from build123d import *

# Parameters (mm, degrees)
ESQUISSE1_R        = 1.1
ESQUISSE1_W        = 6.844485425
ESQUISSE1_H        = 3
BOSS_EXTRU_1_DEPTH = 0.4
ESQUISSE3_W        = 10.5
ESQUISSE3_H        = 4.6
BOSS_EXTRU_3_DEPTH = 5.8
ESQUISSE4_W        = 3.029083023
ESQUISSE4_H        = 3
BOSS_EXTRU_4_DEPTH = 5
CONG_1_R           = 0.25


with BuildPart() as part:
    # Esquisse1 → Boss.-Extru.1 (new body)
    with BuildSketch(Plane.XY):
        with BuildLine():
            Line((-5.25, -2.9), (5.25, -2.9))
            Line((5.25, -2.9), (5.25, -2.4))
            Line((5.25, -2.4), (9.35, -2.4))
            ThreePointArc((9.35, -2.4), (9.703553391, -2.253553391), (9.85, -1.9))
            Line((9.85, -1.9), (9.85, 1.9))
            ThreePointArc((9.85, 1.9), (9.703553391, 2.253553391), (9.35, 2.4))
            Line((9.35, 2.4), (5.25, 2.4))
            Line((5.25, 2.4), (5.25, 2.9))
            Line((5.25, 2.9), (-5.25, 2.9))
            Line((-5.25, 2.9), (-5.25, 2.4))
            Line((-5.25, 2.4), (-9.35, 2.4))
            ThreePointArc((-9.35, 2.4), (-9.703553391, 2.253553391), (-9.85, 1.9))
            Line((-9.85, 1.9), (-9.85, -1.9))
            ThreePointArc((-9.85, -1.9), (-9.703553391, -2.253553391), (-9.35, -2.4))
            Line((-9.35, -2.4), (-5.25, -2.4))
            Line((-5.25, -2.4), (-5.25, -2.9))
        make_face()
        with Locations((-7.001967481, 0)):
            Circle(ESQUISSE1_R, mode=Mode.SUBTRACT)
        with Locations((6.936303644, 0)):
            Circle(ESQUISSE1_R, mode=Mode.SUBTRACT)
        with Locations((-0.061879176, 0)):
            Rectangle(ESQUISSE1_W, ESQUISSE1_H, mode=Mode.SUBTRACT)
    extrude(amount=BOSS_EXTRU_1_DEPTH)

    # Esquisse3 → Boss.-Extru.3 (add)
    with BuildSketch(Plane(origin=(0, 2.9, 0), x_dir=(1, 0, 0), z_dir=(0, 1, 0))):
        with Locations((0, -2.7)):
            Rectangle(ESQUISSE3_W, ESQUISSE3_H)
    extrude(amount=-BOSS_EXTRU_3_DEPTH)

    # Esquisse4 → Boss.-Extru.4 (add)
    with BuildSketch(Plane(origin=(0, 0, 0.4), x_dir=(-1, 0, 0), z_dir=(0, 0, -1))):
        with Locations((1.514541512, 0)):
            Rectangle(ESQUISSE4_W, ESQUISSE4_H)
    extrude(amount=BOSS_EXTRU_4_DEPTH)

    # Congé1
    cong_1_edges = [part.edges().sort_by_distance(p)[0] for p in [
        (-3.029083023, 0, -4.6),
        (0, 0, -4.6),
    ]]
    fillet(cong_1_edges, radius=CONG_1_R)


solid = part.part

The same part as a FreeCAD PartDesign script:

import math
import FreeCAD as App
import Part
import Sketcher
from FreeCAD import Vector


def edges_at(feature, points):
    """Names of the edges that pass closest to the given points."""
    edges = feature.Shape.Edges
    near = lambda p: min(range(len(edges)), key=lambda i: edges[i].distToShape(Part.Vertex(*p))[0])
    return sorted({f"Edge{near(p) + 1}" for p in points})


def add_polygon(sketch, points):
    """Adds a closed chain of lines whose ends are joined by coincident constraints."""
    first, n = sketch.GeometryCount, len(points)
    for a, b in zip(points, points[1:] + points[:1]):
        sketch.addGeometry(Part.LineSegment(App.Vector(*a, 0), App.Vector(*b, 0)), False)
    for i in range(n):
        sketch.addConstraint(Sketcher.Constraint("Coincident", first + i, 2, first + (i + 1) % n, 1))

doc = App.newDocument("Part")
params = doc.addObject("Spreadsheet::Sheet", "Params")
for row, (alias, value) in enumerate([
    ("sketch1_diameter", "2.2 mm"),
    ("sketch1_radius", "0.5 mm"),
    ("sketch1_height", "3 mm"),
    ("sketch1_width", "10.5 mm"),
    ("sketch1_width2", "4.1 mm"),
    ("pad1_length", "0.4 mm"),
    ("sketch2_width", "10.5 mm"),
    ("sketch2_height", "4.6 mm"),
    ("pad2_length", "5.8 mm"),
    ("sketch3_height", "3 mm"),
    ("pad3_length", "5 mm"),
    ("fillet_radius", "0.25 mm"),
], start=1):
    params.set(f"A{row}", alias)
    params.set(f"B{row}", "=" + value)
    params.setAlias(f"B{row}", alias)

body = doc.addObject("PartDesign::Body", "Body")

sketch1 = body.newObject("Sketcher::SketchObject", "Sketch")
sketch1.AttachmentSupport = (doc.getObject("XY_Plane"), [""])
sketch1.MapMode = "FlatFace"
sketch1.addGeometry(Part.LineSegment(Vector(-5.25, -2.9, 0), Vector(5.25, -2.9, 0)), False)
sketch1.addGeometry(Part.LineSegment(Vector(5.25, -2.9, 0), Vector(5.25, -2.4, 0)), False)
sketch1.addGeometry(Part.LineSegment(Vector(5.25, -2.4, 0), Vector(9.35, -2.4, 0)), False)
sketch1.addGeometry(Part.ArcOfCircle(Part.Circle(Vector(9.35, -1.9, 0), Vector(0, 0, 1), 0.5), math.radians(-90), math.radians(0)), False)
sketch1.addGeometry(Part.LineSegment(Vector(9.85, -1.9, 0), Vector(9.85, 1.9, 0)), False)
sketch1.addGeometry(Part.ArcOfCircle(Part.Circle(Vector(9.35, 1.9, 0), Vector(0, 0, 1), 0.5), math.radians(0), math.radians(90)), False)
sketch1.addGeometry(Part.LineSegment(Vector(9.35, 2.4, 0), Vector(5.25, 2.4, 0)), False)
sketch1.addGeometry(Part.LineSegment(Vector(5.25, 2.4, 0), Vector(5.25, 2.9, 0)), False)
sketch1.addGeometry(Part.LineSegment(Vector(5.25, 2.9, 0), Vector(-5.25, 2.9, 0)), False)
sketch1.addGeometry(Part.LineSegment(Vector(-5.25, 2.9, 0), Vector(-5.25, 2.4, 0)), False)
sketch1.addGeometry(Part.LineSegment(Vector(-5.25, 2.4, 0), Vector(-9.35, 2.4, 0)), False)
sketch1.addGeometry(Part.ArcOfCircle(Part.Circle(Vector(-9.35, 1.9, 0), Vector(0, 0, 1), 0.5), math.radians(90), math.radians(180)), False)
sketch1.addGeometry(Part.LineSegment(Vector(-9.85, 1.9, 0), Vector(-9.85, -1.9, 0)), False)
sketch1.addGeometry(Part.ArcOfCircle(Part.Circle(Vector(-9.35, -1.9, 0), Vector(0, 0, 1), 0.5), math.radians(180), math.radians(270)), False)
sketch1.addGeometry(Part.LineSegment(Vector(-9.35, -2.4, 0), Vector(-5.25, -2.4, 0)), False)
sketch1.addGeometry(Part.LineSegment(Vector(-5.25, -2.4, 0), Vector(-5.25, -2.9, 0)), False)
sketch1.addGeometry(Part.Circle(Vector(-7, 0, 0), Vector(0, 0, 1), 1.1), False)
add_polygon(sketch1, [(3.36, -1.5), (-3.48, -1.5), (-3.48, 1.5), (3.36, 1.5)])
sketch1.addGeometry(Part.Circle(Vector(6.94, 0, 0), Vector(0, 0, 1), 1.1), False)
sketch1.addConstraint([
    Sketcher.Constraint("Coincident", 0, 2, 1, 1),
    Sketcher.Constraint("Coincident", 1, 2, 2, 1),
    Sketcher.Constraint("Tangent", 2, 2, 3, 1),
    Sketcher.Constraint("Tangent", 3, 2, 4, 1),
    Sketcher.Constraint("Tangent", 4, 2, 5, 1),
    Sketcher.Constraint("Tangent", 5, 2, 6, 1),
    Sketcher.Constraint("Coincident", 6, 2, 7, 1),
    Sketcher.Constraint("Coincident", 7, 2, 8, 1),
    Sketcher.Constraint("Coincident", 8, 2, 9, 1),
    Sketcher.Constraint("Coincident", 9, 2, 10, 1),
    Sketcher.Constraint("Tangent", 10, 2, 11, 1),
    Sketcher.Constraint("Tangent", 11, 2, 12, 1),
    Sketcher.Constraint("Tangent", 12, 2, 13, 1),
    Sketcher.Constraint("Tangent", 13, 2, 14, 1),
    Sketcher.Constraint("Coincident", 14, 2, 15, 1),
    Sketcher.Constraint("Coincident", 15, 2, 0, 1),
    Sketcher.Constraint("Horizontal", 0),
    Sketcher.Constraint("Vertical", 1),
    Sketcher.Constraint("Horizontal", 2),
    Sketcher.Constraint("Vertical", 4),
    Sketcher.Constraint("Horizontal", 6),
    Sketcher.Constraint("Vertical", 7),
    Sketcher.Constraint("Horizontal", 8),
    Sketcher.Constraint("Vertical", 9),
    Sketcher.Constraint("Horizontal", 10),
    Sketcher.Constraint("Vertical", 12),
    Sketcher.Constraint("Horizontal", 14),
    Sketcher.Constraint("Vertical", 15),
    Sketcher.Constraint("Horizontal", 17),
    Sketcher.Constraint("Vertical", 18),
    Sketcher.Constraint("Horizontal", 19),
    Sketcher.Constraint("Vertical", 20),
    Sketcher.Constraint("Equal", 3, 5),
    Sketcher.Constraint("Equal", 5, 11),
    Sketcher.Constraint("Equal", 11, 13),
    Sketcher.Constraint("Equal", 16, 21),
    Sketcher.Constraint("Symmetric", 3, 3, 11, 3, -1, 1),
    Sketcher.Constraint("Symmetric", 0, 2, 8, 2, -1, 1),
    Sketcher.Constraint("Symmetric", 6, 2, 14, 2, -1, 1),
    Sketcher.Constraint("Symmetric", 6, 2, 9, 2, -2),
    Sketcher.Constraint("PointOnObject", 16, 3, -1),
    Sketcher.Constraint("PointOnObject", 21, 3, -1),
    Sketcher.Constraint("Diameter", 16, 2.2),
    Sketcher.Constraint("Radius", 3, 0.5),
    Sketcher.Constraint("DistanceY", 18, 1, 18, 2, 3.0),
    Sketcher.Constraint("DistanceX", 0, 1, 0, 2, 10.5),
    Sketcher.Constraint("DistanceX", 2, 1, 2, 2, 4.1),
    Sketcher.Constraint("DistanceY", 1, 1, 1, 2, 0.5),
    Sketcher.Constraint("DistanceY", 4, 1, 4, 2, 3.8),
    Sketcher.Constraint("DistanceY", 17, 2, -1, 1, 1.5),
    Sketcher.Constraint("DistanceX", 17, 2, 17, 1, 6.844485),
    Sketcher.Constraint("DistanceX", 17, 2, -1, 1, 3.484122),
    Sketcher.Constraint("DistanceX", 16, 3, 21, 3, 13.938271),
    Sketcher.Constraint("DistanceX", 19, 2, 21, 3, 3.57594),
])
sketch1.setExpression("Constraints[46]", "Params.sketch1_diameter")
sketch1.setExpression("Constraints[47]", "Params.sketch1_radius")
sketch1.setExpression("Constraints[48]", "Params.sketch1_height")
sketch1.setExpression("Constraints[49]", "Params.sketch1_width")
sketch1.setExpression("Constraints[50]", "Params.sketch1_width2")
pad1 = body.newObject("PartDesign::Pad", "Pad")
pad1.Profile = sketch1
pad1.setExpression("Length", "Params.pad1_length")

sketch2 = body.newObject("Sketcher::SketchObject", "Sketch001")
sketch2.AttachmentSupport = (doc.getObject("XZ_Plane"), [""])
sketch2.MapMode = "FlatFace"
sketch2.AttachmentOffset = App.Placement(Vector(0, 0, -2.9), App.Rotation())
add_polygon(sketch2, [(-5.2, 0.4), (-5.2, 5), (5.2, 5), (5.2, 0.4)])
sketch2.addConstraint([
    Sketcher.Constraint("Vertical", 0),
    Sketcher.Constraint("Horizontal", 1),
    Sketcher.Constraint("Vertical", 2),
    Sketcher.Constraint("Horizontal", 3),
    Sketcher.Constraint("DistanceX", 1, 1, 1, 2, 10.5),
    Sketcher.Constraint("DistanceY", 0, 1, 0, 2, 4.6),
    Sketcher.Constraint("DistanceY", -1, 1, 0, 2, 5.0),
    Sketcher.Constraint("DistanceX", 0, 2, -1, 1, 5.25),
])
sketch2.setExpression("Constraints[8]", "Params.sketch2_width")
sketch2.setExpression("Constraints[9]", "Params.sketch2_height")
pad2 = body.newObject("PartDesign::Pad", "Pad001")
pad2.Profile = sketch2
pad2.setExpression("Length", "Params.pad2_length")

sketch3 = body.newObject("Sketcher::SketchObject", "Sketch002")
sketch3.AttachmentSupport = (doc.getObject("XY_Plane"), [""])
sketch3.MapMode = "FlatFace"
sketch3.AttachmentOffset = App.Placement(Vector(0, 0, 0.4), App.Rotation())
add_polygon(sketch3, [(0, 1.5), (0, -1.5), (-3, -1.5), (-3, 1.5)])
sketch3.addConstraint([
    Sketcher.Constraint("Vertical", 0),
    Sketcher.Constraint("Horizontal", 1),
    Sketcher.Constraint("Vertical", 2),
    Sketcher.Constraint("Horizontal", 3),
    Sketcher.Constraint("Symmetric", 0, 2, 3, 2, -1, 1),
    Sketcher.Constraint("DistanceY", 0, 2, 0, 1, 3.0),
    Sketcher.Constraint("DistanceX", 1, 2, 1, 1, 3.029083),
])
sketch3.setExpression("Constraints[9]", "Params.sketch3_height")
pad3 = body.newObject("PartDesign::Pad", "Pad002")
pad3.Profile = sketch3
pad3.setExpression("Length", "Params.pad3_length")
pad3.Reversed = True
doc.recompute()

fillet = body.newObject("PartDesign::Fillet", "Fillet")
fillet.Base = (pad3, edges_at(pad3, [(-3.029, 0, -4.6), (0, 0, -4.6)]))
fillet.setExpression("Radius", "Params.fillet_radius")

doc.recompute()
